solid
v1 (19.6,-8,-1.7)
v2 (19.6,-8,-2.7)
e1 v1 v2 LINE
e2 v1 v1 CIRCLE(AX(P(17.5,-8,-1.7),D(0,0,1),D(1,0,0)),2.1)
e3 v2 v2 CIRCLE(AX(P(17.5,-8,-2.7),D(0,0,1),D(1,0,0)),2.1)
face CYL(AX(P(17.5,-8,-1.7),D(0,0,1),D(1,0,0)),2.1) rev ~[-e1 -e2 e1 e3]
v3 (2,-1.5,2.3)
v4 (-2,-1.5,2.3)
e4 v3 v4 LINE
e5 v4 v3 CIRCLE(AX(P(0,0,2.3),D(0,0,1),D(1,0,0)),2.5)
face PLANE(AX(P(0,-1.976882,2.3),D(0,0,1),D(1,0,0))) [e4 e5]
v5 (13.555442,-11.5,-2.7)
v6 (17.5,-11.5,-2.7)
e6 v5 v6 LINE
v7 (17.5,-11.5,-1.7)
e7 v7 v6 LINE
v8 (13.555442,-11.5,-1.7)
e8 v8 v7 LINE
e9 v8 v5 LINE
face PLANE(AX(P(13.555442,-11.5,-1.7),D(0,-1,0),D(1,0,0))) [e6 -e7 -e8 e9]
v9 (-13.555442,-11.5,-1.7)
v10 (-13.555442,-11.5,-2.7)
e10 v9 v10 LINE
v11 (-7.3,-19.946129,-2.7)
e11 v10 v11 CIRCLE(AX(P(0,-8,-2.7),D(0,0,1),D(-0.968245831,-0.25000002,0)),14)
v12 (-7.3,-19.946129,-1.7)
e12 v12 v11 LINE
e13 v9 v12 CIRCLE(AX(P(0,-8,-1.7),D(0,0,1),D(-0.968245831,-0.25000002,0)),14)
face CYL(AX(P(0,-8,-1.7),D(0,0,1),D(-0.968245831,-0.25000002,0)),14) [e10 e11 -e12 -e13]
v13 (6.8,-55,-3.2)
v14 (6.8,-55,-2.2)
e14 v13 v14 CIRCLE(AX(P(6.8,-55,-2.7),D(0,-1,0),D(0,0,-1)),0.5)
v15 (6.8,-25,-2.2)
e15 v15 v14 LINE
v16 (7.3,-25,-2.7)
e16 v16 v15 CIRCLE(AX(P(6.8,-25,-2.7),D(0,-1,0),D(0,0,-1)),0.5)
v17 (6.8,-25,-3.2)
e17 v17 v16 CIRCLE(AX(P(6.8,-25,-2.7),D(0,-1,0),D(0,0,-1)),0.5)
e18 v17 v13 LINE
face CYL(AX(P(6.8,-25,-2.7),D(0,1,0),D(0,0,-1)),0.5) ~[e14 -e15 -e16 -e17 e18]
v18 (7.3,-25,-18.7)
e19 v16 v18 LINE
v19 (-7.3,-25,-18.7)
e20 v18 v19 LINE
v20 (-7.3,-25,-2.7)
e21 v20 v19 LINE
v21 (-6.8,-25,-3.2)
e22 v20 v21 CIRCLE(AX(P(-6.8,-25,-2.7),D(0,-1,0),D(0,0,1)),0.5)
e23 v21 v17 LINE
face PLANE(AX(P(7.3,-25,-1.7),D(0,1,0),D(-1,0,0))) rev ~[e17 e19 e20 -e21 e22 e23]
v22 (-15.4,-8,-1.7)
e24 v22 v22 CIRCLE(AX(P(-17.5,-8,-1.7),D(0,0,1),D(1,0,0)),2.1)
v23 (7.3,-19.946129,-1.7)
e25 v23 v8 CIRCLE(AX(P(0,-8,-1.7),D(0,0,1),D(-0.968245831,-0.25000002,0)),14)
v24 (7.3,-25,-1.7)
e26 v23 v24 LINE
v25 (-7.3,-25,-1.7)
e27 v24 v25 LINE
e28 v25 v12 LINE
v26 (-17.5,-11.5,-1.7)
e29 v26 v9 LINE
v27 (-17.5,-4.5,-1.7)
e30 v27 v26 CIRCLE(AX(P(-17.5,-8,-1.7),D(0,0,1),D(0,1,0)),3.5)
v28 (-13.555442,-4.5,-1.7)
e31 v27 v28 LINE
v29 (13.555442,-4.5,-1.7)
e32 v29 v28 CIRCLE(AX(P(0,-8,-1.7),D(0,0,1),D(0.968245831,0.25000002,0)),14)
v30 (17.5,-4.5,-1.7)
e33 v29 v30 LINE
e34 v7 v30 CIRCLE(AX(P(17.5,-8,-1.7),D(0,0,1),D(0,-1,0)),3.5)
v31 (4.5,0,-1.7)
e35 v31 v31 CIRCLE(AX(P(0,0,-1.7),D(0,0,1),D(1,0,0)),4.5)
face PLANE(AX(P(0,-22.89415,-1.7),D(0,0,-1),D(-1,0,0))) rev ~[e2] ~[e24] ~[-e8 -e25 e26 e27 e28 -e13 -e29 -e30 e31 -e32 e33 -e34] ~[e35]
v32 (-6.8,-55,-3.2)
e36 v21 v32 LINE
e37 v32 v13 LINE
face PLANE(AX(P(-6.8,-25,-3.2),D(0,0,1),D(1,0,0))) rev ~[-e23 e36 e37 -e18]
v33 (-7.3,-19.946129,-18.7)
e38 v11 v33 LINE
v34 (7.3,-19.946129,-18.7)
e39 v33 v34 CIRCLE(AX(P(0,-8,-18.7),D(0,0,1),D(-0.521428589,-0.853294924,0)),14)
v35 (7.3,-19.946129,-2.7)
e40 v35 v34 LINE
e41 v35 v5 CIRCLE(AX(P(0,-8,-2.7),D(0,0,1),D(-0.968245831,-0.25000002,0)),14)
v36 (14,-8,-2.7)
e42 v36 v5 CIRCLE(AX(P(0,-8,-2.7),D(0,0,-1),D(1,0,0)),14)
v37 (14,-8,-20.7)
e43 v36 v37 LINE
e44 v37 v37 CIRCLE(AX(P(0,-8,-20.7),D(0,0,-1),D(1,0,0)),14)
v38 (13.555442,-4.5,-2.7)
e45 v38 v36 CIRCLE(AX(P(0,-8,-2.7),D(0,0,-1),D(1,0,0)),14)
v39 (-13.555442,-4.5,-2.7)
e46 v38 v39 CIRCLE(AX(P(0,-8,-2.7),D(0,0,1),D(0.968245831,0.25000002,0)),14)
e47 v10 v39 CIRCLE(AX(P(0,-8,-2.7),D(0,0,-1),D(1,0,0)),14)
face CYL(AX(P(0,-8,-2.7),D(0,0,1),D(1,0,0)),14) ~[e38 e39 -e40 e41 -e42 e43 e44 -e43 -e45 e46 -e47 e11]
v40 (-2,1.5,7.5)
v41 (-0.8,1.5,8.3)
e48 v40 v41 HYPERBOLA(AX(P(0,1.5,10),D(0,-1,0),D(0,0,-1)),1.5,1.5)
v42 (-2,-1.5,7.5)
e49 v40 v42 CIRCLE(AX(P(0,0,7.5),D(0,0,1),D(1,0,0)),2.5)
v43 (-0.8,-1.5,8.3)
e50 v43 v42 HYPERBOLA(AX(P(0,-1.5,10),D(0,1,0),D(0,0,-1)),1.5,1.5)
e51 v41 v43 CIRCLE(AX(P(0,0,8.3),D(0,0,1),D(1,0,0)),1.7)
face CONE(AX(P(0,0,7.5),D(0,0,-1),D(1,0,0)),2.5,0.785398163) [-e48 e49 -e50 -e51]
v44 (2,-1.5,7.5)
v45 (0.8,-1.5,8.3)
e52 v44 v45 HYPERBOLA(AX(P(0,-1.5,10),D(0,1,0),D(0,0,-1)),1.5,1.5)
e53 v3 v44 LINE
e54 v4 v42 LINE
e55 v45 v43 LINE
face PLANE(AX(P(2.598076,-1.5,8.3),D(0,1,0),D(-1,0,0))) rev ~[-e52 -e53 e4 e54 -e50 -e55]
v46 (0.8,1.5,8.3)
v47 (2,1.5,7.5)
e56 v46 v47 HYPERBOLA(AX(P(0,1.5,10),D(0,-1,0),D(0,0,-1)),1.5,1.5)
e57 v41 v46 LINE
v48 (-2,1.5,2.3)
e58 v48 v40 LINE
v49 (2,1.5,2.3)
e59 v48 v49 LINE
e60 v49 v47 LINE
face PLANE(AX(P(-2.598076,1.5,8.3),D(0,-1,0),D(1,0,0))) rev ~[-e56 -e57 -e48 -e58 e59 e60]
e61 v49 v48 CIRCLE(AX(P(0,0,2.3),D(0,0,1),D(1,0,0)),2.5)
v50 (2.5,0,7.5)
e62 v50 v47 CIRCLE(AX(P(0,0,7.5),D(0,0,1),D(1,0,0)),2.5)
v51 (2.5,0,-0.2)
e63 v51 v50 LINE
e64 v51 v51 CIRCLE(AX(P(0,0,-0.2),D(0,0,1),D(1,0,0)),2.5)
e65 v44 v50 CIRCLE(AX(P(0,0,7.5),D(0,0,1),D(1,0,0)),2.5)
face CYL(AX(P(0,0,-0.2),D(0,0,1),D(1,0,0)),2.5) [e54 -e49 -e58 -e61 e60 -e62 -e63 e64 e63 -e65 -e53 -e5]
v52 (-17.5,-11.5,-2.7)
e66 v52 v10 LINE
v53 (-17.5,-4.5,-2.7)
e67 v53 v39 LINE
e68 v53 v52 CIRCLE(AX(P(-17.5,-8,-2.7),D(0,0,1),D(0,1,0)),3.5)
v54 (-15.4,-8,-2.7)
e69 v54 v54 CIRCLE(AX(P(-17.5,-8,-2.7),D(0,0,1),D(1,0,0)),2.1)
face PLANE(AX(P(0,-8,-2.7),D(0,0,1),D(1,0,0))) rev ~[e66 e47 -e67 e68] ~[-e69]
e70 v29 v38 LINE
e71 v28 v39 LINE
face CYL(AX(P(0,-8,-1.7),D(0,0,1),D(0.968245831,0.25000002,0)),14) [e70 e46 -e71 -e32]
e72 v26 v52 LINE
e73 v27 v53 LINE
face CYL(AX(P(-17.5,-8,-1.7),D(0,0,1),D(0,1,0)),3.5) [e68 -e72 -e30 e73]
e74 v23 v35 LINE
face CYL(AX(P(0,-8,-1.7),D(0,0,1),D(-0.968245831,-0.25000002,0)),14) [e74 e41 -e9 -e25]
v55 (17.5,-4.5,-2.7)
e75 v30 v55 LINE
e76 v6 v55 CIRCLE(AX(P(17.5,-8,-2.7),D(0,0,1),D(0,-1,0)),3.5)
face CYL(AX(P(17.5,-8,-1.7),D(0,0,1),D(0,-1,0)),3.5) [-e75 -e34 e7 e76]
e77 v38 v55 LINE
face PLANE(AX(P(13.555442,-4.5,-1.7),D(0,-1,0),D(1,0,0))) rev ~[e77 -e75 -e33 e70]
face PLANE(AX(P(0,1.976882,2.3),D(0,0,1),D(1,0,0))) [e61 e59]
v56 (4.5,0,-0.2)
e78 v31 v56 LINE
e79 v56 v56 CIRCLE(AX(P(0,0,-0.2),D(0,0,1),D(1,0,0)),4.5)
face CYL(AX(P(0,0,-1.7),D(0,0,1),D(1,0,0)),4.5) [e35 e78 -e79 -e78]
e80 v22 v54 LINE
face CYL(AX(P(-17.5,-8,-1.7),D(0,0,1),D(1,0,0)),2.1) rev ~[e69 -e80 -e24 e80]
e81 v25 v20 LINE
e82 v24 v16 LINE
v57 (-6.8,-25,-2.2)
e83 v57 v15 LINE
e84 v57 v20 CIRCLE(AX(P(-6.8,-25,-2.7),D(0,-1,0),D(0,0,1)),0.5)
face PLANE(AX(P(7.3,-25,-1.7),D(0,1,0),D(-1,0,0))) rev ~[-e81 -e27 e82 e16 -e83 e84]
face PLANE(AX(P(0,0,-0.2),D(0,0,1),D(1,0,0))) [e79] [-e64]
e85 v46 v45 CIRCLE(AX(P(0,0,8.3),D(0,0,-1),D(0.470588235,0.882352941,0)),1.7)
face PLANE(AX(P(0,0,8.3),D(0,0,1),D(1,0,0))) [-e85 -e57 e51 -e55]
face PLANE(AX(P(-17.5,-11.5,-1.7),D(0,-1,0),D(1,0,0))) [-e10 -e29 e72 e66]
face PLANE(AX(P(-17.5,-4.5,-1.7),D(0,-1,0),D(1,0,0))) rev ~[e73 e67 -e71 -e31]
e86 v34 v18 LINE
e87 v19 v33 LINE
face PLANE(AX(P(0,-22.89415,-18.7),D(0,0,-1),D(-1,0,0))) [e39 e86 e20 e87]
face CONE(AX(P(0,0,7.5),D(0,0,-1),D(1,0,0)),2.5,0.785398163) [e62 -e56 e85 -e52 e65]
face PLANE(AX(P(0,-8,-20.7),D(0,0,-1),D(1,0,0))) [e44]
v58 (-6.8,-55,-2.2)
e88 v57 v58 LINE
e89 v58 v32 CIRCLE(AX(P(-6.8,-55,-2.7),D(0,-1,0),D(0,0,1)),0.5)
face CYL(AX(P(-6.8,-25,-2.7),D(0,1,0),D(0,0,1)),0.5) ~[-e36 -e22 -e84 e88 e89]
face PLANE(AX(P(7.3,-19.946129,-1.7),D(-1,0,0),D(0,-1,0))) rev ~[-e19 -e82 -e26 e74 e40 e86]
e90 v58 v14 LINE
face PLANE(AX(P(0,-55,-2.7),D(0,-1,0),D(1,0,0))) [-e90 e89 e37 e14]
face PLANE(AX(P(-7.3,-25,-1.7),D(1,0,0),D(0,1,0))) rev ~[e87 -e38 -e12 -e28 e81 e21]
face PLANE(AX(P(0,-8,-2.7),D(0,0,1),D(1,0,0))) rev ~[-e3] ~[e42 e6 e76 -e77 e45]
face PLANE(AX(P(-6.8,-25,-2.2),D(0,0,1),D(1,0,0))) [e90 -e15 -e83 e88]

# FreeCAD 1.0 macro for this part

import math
import FreeCAD as App
import Part
import Sketcher
Q = App.Units.Quantity

doc = App.newDocument("Part")
params = doc.addObject("Spreadsheet::Sheet", "Params")
for row, (alias, value) in enumerate([
    ("sketch1_radius", "14 mm"),
    ("sketch1_diameter", "4.2 mm"),
    ("sketch1_radius2", "3.5 mm"),
    ("pad1_length", "1 mm"),
    ("sketch2_diameter", "28 mm"),
    ("pad2_length", "18 mm"),
    ("sketch3_width", "2 mm"),
    ("sketch3_height", "10 mm"),
    ("sketch3_width2", "4.5 mm"),
    ("sketch3_width3", "1.7 mm"),
    ("sketch3_height2", "1.5 mm"),
    ("revolution_angle", "360 deg"),
    ("sketch4_radius", "3 mm"),
    ("pocket1_length", "6 mm"),
    ("sketch5_radius", "14 mm"),
    ("sketch5_width", "14.6 mm"),
    ("pad3_length", "17 mm"),
    ("sketch6_radius", "0.5 mm"),
    ("sketch6_width", "13.6 mm"),
    ("pad4_length", "30 mm"),
], start=1):
    params.set(f"A{row}", alias)
    params.set(f"B{row}", "=" + value)
    params.setAlias(f"B{row}", alias)

body = doc.addObject("PartDesign::Body", "Body")

sketch1 = body.newObject("Sketcher::SketchObject", "Sketch")
sketch1.AttachmentSupport = (doc.getObject("XY_Plane"), [""])
sketch1.MapMode = "FlatFace"
sketch1.addGeometry([
    Part.ArcOfCircle(Part.Circle(App.Vector(0, 0, 0), App.Vector(0, 0, 1), 14), math.radians(14), math.radians(166)),
    Part.LineSegment(App.Vector(-13.6, 3.5, 0), App.Vector(-17.5, 3.5, 0)),
    Part.ArcOfCircle(Part.Circle(App.Vector(-17.5, 0, 0), App.Vector(0, 0, 1), 3.5), math.radians(90), math.radians(270)),
    Part.LineSegment(App.Vector(-17.5, -3.5, 0), App.Vector(-13.6, -3.5, 0)),
    Part.ArcOfCircle(Part.Circle(App.Vector(0, 0, 0), App.Vector(0, 0, 1), 14), math.radians(-166), math.radians(-14)),
    Part.LineSegment(App.Vector(13.6, -3.5, 0), App.Vector(17.5, -3.5, 0)),
    Part.ArcOfCircle(Part.Circle(App.Vector(17.5, 0, 0), App.Vector(0, 0, 1), 3.5), math.radians(-90), math.radians(90)),
    Part.LineSegment(App.Vector(17.5, 3.5, 0), App.Vector(13.6, 3.5, 0)),
    Part.Circle(App.Vector(-17.5, 0, 0), App.Vector(0, 0, 1), 2.1),
    Part.Circle(App.Vector(17.5, 0, 0), App.Vector(0, 0, 1), 2.1),
], False)
sketch1.addConstraint([
    Sketcher.Constraint("Coincident", 0, 2, 1, 1),
    Sketcher.Constraint("Tangent", 1, 2, 2, 1),
    Sketcher.Constraint("Tangent", 2, 2, 3, 1),
    Sketcher.Constraint("Coincident", 3, 2, 4, 1),
    Sketcher.Constraint("Coincident", 4, 2, 5, 1),
    Sketcher.Constraint("Tangent", 5, 2, 6, 1),
    Sketcher.Constraint("Tangent", 6, 2, 7, 1),
    Sketcher.Constraint("Coincident", 7, 2, 0, 1),
    Sketcher.Constraint("Horizontal", 1),
    Sketcher.Constraint("Horizontal", 3),
    Sketcher.Constraint("Horizontal", 5),
    Sketcher.Constraint("Horizontal", 7),
    Sketcher.Constraint("Coincident", 0, 3, -1, 1),
    Sketcher.Constraint("Coincident", 4, 3, -1, 1),
    Sketcher.Constraint("Coincident", 8, 3, 2, 3),
    Sketcher.Constraint("Coincident", 9, 3, 6, 3),
    Sketcher.Constraint("Equal", 0, 4),
    Sketcher.Constraint("Equal", 2, 6),
    Sketcher.Constraint("Equal", 8, 9),
    Sketcher.Constraint("Symmetric", 2, 3, 6, 3, -1, 1),
    Sketcher.Constraint("PointOnObject", 2, 3, -1),
    Sketcher.Constraint("Radius", 0, 14.0),
    Sketcher.Constraint("Diameter", 8, 4.2),
    Sketcher.Constraint("Radius", 2, 3.5),
    Sketcher.Constraint("DistanceX", 2, 3, 6, 3, 35.0),
])
sketch1.setExpression("Constraints[21]", "Params.sketch1_radius")
sketch1.setExpression("Constraints[22]", "Params.sketch1_diameter")
sketch1.setExpression("Constraints[23]", "Params.sketch1_radius2")
pad1 = body.newObject("PartDesign::Pad", "Pad")
pad1.Profile = sketch1
pad1.setExpression("Length", "Params.pad1_length")
pad1.Reversed = True

sketch2 = body.newObject("Sketcher::SketchObject", "Sketch001")
sketch2.AttachmentSupport = (doc.getObject("XY_Plane"), [""])
sketch2.MapMode = "FlatFace"
sketch2.AttachmentOffset = App.Placement(App.Vector(0, 0, -1), App.Rotation())
sketch2.addGeometry(Part.Circle(App.Vector(0, 0, 0), App.Vector(0, 0, 1), 14), False)
sketch2.addConstraint([
    Sketcher.Constraint("Coincident", 0, 3, -1, 1),
    Sketcher.Constraint("Diameter", 0, 28.0),
])
sketch2.setExpression("Constraints[1]", "Params.sketch2_diameter")
pad2 = body.newObject("PartDesign::Pad", "Pad001")
pad2.Profile = sketch2
pad2.setExpression("Length", "Params.pad2_length")
pad2.Reversed = True

sketch3 = body.newObject("Sketcher::SketchObject", "Sketch002")
sketch3.AttachmentSupport = (doc.getObject("XZ_Plane"), [""])
sketch3.MapMode = "FlatFace"
sketch3.AttachmentOffset = App.Placement(App.Vector(0, 0, -8), App.Rotation())
sketch3.addGeometry([
    Part.LineSegment(App.Vector(0, 0, 0), App.Vector(4.5, 0, 0)),
    Part.LineSegment(App.Vector(4.5, 0, 0), App.Vector(4.5, 1.5, 0)),
    Part.LineSegment(App.Vector(4.5, 1.5, 0), App.Vector(2.5, 1.5, 0)),
    Part.LineSegment(App.Vector(2.5, 1.5, 0), App.Vector(2.5, 9.2, 0)),
    Part.LineSegment(App.Vector(2.5, 9.2, 0), App.Vector(1.7, 10, 0)),
    Part.LineSegment(App.Vector(1.7, 10, 0), App.Vector(0, 10, 0)),
    Part.LineSegment(App.Vector(0, 10, 0), App.Vector(0, 0, 0)),
], False)
sketch3.addConstraint([
    Sketcher.Constraint("Coincident", 0, 2, 1, 1),
    Sketcher.Constraint("Coincident", 1, 2, 2, 1),
    Sketcher.Constraint("Coincident", 2, 2, 3, 1),
    Sketcher.Constraint("Coincident", 3, 2, 4, 1),
    Sketcher.Constraint("Coincident", 4, 2, 5, 1),
    Sketcher.Constraint("Coincident", 5, 2, 6, 1),
    Sketcher.Constraint("Coincident", 6, 2, 0, 1),
    Sketcher.Constraint("Horizontal", 0),
    Sketcher.Constraint("Vertical", 1),
    Sketcher.Constraint("Horizontal", 2),
    Sketcher.Constraint("Vertical", 3),
    Sketcher.Constraint("Horizontal", 5),
    Sketcher.Constraint("Vertical", 6),
    Sketcher.Constraint("Coincident", 6, 2, -1, 1),
    Sketcher.Constraint("DistanceX", 2, 2, 2, 1, 2.0),
    Sketcher.Constraint("DistanceY", 6, 2, 6, 1, 10.0),
    Sketcher.Constraint("Angle", 4, Q("135 deg")),
    Sketcher.Constraint("DistanceX", 0, 1, 0, 2, 4.5),
    Sketcher.Constraint("DistanceX", 5, 2, 5, 1, 1.7),
    Sketcher.Constraint("DistanceY", 1, 1, 1, 2, 1.5),
])
sketch3.setExpression("Constraints[14]", "Params.sketch3_width")
sketch3.setExpression("Constraints[15]", "Params.sketch3_height")
sketch3.setExpression("Constraints[17]", "Params.sketch3_width2")
sketch3.setExpression("Constraints[18]", "Params.sketch3_width3")
sketch3.setExpression("Constraints[19]", "Params.sketch3_height2")
revolution = body.newObject("PartDesign::Revolution", "Revolution")
revolution.Profile = sketch3
revolution.ReferenceAxis = (sketch3, ["V_Axis"])
revolution.setExpression("Angle", "Params.revolution_angle")

sketch4 = body.newObject("Sketcher::SketchObject", "Sketch003")
sketch4.AttachmentSupport = (doc.getObject("XY_Plane"), [""])
sketch4.MapMode = "FlatFace"
sketch4.AttachmentOffset = App.Placement(App.Vector(0, 0, 10), App.Rotation())
sketch4.addGeometry([
    Part.ArcOfCircle(Part.Circle(App.Vector(0, 8, 0), App.Vector(0, 0, 1), 3), math.radians(30), math.radians(150)),
    Part.LineSegment(App.Vector(-2.6, 9.5, 0), App.Vector(2.6, 9.5, 0)),
    Part.LineSegment(App.Vector(2.6, 6.5, 0), App.Vector(-2.6, 6.5, 0)),
    Part.ArcOfCircle(Part.Circle(App.Vector(0, 8, 0), App.Vector(0, 0, 1), 3), math.radians(-150), math.radians(-30)),
], False)
sketch4.addConstraint([
    Sketcher.Constraint("Coincident", 0, 1, 1, 2),
    Sketcher.Constraint("Coincident", 1, 1, 0, 2),
    Sketcher.Constraint("Coincident", 2, 1, 3, 2),
    Sketcher.Constraint("Coincident", 3, 1, 2, 2),
    Sketcher.Constraint("Horizontal", 1),
    Sketcher.Constraint("Horizontal", 2),
    Sketcher.Constraint("Coincident", 3, 3, 0, 3),
    Sketcher.Constraint("Equal", 0, 3),
    Sketcher.Constraint("PointOnObject", 0, 3, -2),
    Sketcher.Constraint("Vertical", 0, 1, 2, 1),
    Sketcher.Constraint("Radius", 0, 3.0),
    Sketcher.Constraint("DistanceY", -1, 1, 0, 3, 8.0),
    Sketcher.Constraint("DistanceY", 2, 1, 0, 1, 3.0),
])
sketch4.setExpression("Constraints[10]", "Params.sketch4_radius")
pocket1 = body.newObject("PartDesign::Pocket", "Pocket")
pocket1.Profile = sketch4
pocket1.setExpression("Length", "Params.pocket1_length")

sketch5 = body.newObject("Sketcher::SketchObject", "Sketch004")
sketch5.AttachmentSupport = (doc.getObject("XY_Plane"), [""])
sketch5.MapMode = "FlatFace"
sketch5.addGeometry([
    Part.ArcOfCircle(Part.Circle(App.Vector(0, 0, 0), App.Vector(0, 0, 1), 14), math.radians(-121), math.radians(-59)),
    Part.LineSegment(App.Vector(-7, -12, 0), App.Vector(-7, -17, 0)),
    Part.LineSegment(App.Vector(-7, -17, 0), App.Vector(7, -17, 0)),
    Part.LineSegment(App.Vector(7, -17, 0), App.Vector(7, -12, 0)),
], False)
sketch5.addConstraint([
    Sketcher.Constraint("Coincident", 0, 1, 1, 1),
    Sketcher.Constraint("Coincident", 1, 2, 2, 1),
    Sketcher.Constraint("Coincident", 2, 2, 3, 1),
    Sketcher.Constraint("Coincident", 3, 2, 0, 2),
    Sketcher.Constraint("Vertical", 1),
    Sketcher.Constraint("Horizontal", 2),
    Sketcher.Constraint("Vertical", 3),
    Sketcher.Constraint("Coincident", 0, 3, -1, 1),
    Sketcher.Constraint("Horizontal", 0, 1, 3, 2),
    Sketcher.Constraint("Radius", 0, 14.0),
    Sketcher.Constraint("DistanceX", 2, 1, 2, 2, 14.6),
    Sketcher.Constraint("DistanceY", 1, 2, -1, 1, 17.0),
])
sketch5.setExpression("Constraints[9]", "Params.sketch5_radius")
sketch5.setExpression("Constraints[10]", "Params.sketch5_width")
pad3 = body.newObject("PartDesign::Pad", "Pad002")
pad3.Profile = sketch5
pad3.setExpression("Length", "Params.pad3_length")
pad3.Reversed = True

sketch6 = body.newObject("Sketcher::SketchObject", "Sketch005")
sketch6.AttachmentSupport = (doc.getObject("XZ_Plane"), [""])
sketch6.MapMode = "FlatFace"
sketch6.AttachmentOffset = App.Placement(App.Vector(0, 0, 17), App.Rotation())
sketch6.addGeometry([
    Part.ArcOfCircle(Part.Circle(App.Vector(-6.8, -1, 0), App.Vector(0, 0, 1), 0.5), math.radians(90), math.radians(270)),
    Part.LineSegment(App.Vector(-6.8, -1.5, 0), App.Vector(6.8, -1.5, 0)),
    Part.ArcOfCircle(Part.Circle(App.Vector(6.8, -1, 0), App.Vector(0, 0, 1), 0.5), math.radians(-90), math.radians(90)),
    Part.LineSegment(App.Vector(6.8, -0.5, 0), App.Vector(-6.8, -0.5, 0)),
], False)
sketch6.addConstraint([
    Sketcher.Constraint("Tangent", 0, 2, 1, 1),
    Sketcher.Constraint("Tangent", 1, 2, 2, 1),
    Sketcher.Constraint("Tangent", 2, 2, 3, 1),
    Sketcher.Constraint("Tangent", 3, 2, 0, 1),
    Sketcher.Constraint("Horizontal", 1),
    Sketcher.Constraint("Horizontal", 3),
    Sketcher.Constraint("Radius", 0, 0.5),
    Sketcher.Constraint("DistanceX", 1, 1, 1, 2, 13.6),
    Sketcher.Constraint("DistanceY", 0, 3, -1, 1, 1.0),
    Sketcher.Constraint("DistanceX", 0, 3, -1, 1, 6.8),
])
sketch6.setExpression("Constraints[6]", "Params.sketch6_radius")
sketch6.setExpression("Constraints[7]", "Params.sketch6_width")
pad4 = body.newObject("PartDesign::Pad", "Pad003")
pad4.Profile = sketch6
pad4.setExpression("Length", "Params.pad4_length")
body2 = doc.addObject("PartDesign::Body", "Body001")
doc.recompute()

body.Placement = App.Placement(App.Vector(0, -8, -1.7), App.Rotation(App.Vector(0, 0, 1), 0))
boolean = body2.newObject("PartDesign::Boolean", "Boolean")
boolean.Type = "Fuse"
boolean.addObjects([body])

doc.recompute()
